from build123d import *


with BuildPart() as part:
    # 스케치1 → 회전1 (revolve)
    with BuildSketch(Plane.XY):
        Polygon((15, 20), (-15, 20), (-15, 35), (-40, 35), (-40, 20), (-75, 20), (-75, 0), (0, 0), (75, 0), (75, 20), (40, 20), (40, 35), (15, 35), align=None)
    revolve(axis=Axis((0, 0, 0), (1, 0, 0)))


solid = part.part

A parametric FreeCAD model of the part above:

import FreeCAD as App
import Part
import Sketcher
from FreeCAD import Vector
Q = App.Units.Quantity

doc = App.newDocument("Part")
body = doc.addObject("PartDesign::Body", "Body")

# Sketch on XY plane
sketch1 = body.newObject("Sketcher::SketchObject", "Sketch")
sketch1.AttachmentSupport = (doc.getObject("XY_Plane"), [""])
sketch1.MapMode = "FlatFace"
sketch1.addGeometry(Part.LineSegment(Vector(15, 20, 0), Vector(-15, 20, 0)), False)
sketch1.addGeometry(Part.LineSegment(Vector(-15, 20, 0), Vector(-15, 35, 0)), False)
sketch1.addGeometry(Part.LineSegment(Vector(-15, 35, 0), Vector(-40, 35, 0)), False)
sketch1.addGeometry(Part.LineSegment(Vector(-40, 35, 0), Vector(-40, 20, 0)), False)
sketch1.addGeometry(Part.LineSegment(Vector(-40, 20, 0), Vector(-75, 20, 0)), False)
sketch1.addGeometry(Part.LineSegment(Vector(-75, 20, 0), Vector(-75, 0, 0)), False)
sketch1.addGeometry(Part.LineSegment(Vector(-75, 0, 0), Vector(75, 0, 0)), False)
sketch1.addGeometry(Part.LineSegment(Vector(75, 0, 0), Vector(75, 20, 0)), False)
sketch1.addGeometry(Part.LineSegment(Vector(75, 20, 0), Vector(40, 20, 0)), False)
sketch1.addGeometry(Part.LineSegment(Vector(40, 20, 0), Vector(40, 35, 0)), False)
sketch1.addGeometry(Part.LineSegment(Vector(40, 35, 0), Vector(15, 35, 0)), False)
sketch1.addGeometry(Part.LineSegment(Vector(15, 35, 0), Vector(15, 20, 0)), False)
sketch1.addConstraint(Sketcher.Constraint("Coincident", 0, 2, 1, 1))
sketch1.addConstraint(Sketcher.Constraint("Coincident", 1, 2, 2, 1))
sketch1.addConstraint(Sketcher.Constraint("Coincident", 2, 2, 3, 1))
sketch1.addConstraint(Sketcher.Constraint("Coincident", 3, 2, 4, 1))
sketch1.addConstraint(Sketcher.Constraint("Coincident", 4, 2, 5, 1))
sketch1.addConstraint(Sketcher.Constraint("Coincident", 5, 2, 6, 1))
sketch1.addConstraint(Sketcher.Constraint("Coincident", 6, 2, 7, 1))
sketch1.addConstraint(Sketcher.Constraint("Coincident", 7, 2, 8, 1))
sketch1.addConstraint(Sketcher.Constraint("Coincident", 8, 2, 9, 1))
sketch1.addConstraint(Sketcher.Constraint("Coincident", 9, 2, 10, 1))
sketch1.addConstraint(Sketcher.Constraint("Coincident", 10, 2, 11, 1))
sketch1.addConstraint(Sketcher.Constraint("Coincident", 11, 2, 0, 1))
sketch1.addConstraint(Sketcher.Constraint("Horizontal", 0))
sketch1.addConstraint(Sketcher.Constraint("Vertical", 1))
sketch1.addConstraint(Sketcher.Constraint("Horizontal", 2))
sketch1.addConstraint(Sketcher.Constraint("Vertical", 3))
sketch1.addConstraint(Sketcher.Constraint("Horizontal", 4))
sketch1.addConstraint(Sketcher.Constraint("Vertical", 5))
sketch1.addConstraint(Sketcher.Constraint("Horizontal", 6))
sketch1.addConstraint(Sketcher.Constraint("Vertical", 7))
sketch1.addConstraint(Sketcher.Constraint("Horizontal", 8))
sketch1.addConstraint(Sketcher.Constraint("Vertical", 9))
sketch1.addConstraint(Sketcher.Constraint("Horizontal", 10))
sketch1.addConstraint(Sketcher.Constraint("Vertical", 11))
sketch1.addConstraint(Sketcher.Constraint("Symmetric", 5, 2, 6, 2, -1, 1))
sketch1.addConstraint(Sketcher.Constraint("Symmetric", 3, 2, 8, 2, -2))
sketch1.addConstraint(Sketcher.Constraint("Symmetric", 1, 2, 10, 2, -2))
sketch1.addConstraint(Sketcher.Constraint("Horizontal", 0, 2, 3, 2))
sketch1.addConstraint(Sketcher.Constraint("DistanceX", 0, 2, 0, 1, Q("30 mm")))
sketch1.addConstraint(Sketcher.Constraint("DistanceX", 2, 2, 2, 1, Q("25 mm")))
sketch1.addConstraint(Sketcher.Constraint("DistanceX", 4, 2, 4, 1, Q("35 mm")))
sketch1.addConstraint(Sketcher.Constraint("DistanceY", 1, 1, 1, 2, Q("15 mm")))
sketch1.addConstraint(Sketcher.Constraint("DistanceY", 5, 2, 5, 1, Q("20 mm")))
revolution = body.newObject("PartDesign::Revolution", "Revolution")
revolution.Profile = sketch1
revolution.ReferenceAxis = (sketch1, ["H_Axis"])
revolution.Angle = 360

doc.recompute()
